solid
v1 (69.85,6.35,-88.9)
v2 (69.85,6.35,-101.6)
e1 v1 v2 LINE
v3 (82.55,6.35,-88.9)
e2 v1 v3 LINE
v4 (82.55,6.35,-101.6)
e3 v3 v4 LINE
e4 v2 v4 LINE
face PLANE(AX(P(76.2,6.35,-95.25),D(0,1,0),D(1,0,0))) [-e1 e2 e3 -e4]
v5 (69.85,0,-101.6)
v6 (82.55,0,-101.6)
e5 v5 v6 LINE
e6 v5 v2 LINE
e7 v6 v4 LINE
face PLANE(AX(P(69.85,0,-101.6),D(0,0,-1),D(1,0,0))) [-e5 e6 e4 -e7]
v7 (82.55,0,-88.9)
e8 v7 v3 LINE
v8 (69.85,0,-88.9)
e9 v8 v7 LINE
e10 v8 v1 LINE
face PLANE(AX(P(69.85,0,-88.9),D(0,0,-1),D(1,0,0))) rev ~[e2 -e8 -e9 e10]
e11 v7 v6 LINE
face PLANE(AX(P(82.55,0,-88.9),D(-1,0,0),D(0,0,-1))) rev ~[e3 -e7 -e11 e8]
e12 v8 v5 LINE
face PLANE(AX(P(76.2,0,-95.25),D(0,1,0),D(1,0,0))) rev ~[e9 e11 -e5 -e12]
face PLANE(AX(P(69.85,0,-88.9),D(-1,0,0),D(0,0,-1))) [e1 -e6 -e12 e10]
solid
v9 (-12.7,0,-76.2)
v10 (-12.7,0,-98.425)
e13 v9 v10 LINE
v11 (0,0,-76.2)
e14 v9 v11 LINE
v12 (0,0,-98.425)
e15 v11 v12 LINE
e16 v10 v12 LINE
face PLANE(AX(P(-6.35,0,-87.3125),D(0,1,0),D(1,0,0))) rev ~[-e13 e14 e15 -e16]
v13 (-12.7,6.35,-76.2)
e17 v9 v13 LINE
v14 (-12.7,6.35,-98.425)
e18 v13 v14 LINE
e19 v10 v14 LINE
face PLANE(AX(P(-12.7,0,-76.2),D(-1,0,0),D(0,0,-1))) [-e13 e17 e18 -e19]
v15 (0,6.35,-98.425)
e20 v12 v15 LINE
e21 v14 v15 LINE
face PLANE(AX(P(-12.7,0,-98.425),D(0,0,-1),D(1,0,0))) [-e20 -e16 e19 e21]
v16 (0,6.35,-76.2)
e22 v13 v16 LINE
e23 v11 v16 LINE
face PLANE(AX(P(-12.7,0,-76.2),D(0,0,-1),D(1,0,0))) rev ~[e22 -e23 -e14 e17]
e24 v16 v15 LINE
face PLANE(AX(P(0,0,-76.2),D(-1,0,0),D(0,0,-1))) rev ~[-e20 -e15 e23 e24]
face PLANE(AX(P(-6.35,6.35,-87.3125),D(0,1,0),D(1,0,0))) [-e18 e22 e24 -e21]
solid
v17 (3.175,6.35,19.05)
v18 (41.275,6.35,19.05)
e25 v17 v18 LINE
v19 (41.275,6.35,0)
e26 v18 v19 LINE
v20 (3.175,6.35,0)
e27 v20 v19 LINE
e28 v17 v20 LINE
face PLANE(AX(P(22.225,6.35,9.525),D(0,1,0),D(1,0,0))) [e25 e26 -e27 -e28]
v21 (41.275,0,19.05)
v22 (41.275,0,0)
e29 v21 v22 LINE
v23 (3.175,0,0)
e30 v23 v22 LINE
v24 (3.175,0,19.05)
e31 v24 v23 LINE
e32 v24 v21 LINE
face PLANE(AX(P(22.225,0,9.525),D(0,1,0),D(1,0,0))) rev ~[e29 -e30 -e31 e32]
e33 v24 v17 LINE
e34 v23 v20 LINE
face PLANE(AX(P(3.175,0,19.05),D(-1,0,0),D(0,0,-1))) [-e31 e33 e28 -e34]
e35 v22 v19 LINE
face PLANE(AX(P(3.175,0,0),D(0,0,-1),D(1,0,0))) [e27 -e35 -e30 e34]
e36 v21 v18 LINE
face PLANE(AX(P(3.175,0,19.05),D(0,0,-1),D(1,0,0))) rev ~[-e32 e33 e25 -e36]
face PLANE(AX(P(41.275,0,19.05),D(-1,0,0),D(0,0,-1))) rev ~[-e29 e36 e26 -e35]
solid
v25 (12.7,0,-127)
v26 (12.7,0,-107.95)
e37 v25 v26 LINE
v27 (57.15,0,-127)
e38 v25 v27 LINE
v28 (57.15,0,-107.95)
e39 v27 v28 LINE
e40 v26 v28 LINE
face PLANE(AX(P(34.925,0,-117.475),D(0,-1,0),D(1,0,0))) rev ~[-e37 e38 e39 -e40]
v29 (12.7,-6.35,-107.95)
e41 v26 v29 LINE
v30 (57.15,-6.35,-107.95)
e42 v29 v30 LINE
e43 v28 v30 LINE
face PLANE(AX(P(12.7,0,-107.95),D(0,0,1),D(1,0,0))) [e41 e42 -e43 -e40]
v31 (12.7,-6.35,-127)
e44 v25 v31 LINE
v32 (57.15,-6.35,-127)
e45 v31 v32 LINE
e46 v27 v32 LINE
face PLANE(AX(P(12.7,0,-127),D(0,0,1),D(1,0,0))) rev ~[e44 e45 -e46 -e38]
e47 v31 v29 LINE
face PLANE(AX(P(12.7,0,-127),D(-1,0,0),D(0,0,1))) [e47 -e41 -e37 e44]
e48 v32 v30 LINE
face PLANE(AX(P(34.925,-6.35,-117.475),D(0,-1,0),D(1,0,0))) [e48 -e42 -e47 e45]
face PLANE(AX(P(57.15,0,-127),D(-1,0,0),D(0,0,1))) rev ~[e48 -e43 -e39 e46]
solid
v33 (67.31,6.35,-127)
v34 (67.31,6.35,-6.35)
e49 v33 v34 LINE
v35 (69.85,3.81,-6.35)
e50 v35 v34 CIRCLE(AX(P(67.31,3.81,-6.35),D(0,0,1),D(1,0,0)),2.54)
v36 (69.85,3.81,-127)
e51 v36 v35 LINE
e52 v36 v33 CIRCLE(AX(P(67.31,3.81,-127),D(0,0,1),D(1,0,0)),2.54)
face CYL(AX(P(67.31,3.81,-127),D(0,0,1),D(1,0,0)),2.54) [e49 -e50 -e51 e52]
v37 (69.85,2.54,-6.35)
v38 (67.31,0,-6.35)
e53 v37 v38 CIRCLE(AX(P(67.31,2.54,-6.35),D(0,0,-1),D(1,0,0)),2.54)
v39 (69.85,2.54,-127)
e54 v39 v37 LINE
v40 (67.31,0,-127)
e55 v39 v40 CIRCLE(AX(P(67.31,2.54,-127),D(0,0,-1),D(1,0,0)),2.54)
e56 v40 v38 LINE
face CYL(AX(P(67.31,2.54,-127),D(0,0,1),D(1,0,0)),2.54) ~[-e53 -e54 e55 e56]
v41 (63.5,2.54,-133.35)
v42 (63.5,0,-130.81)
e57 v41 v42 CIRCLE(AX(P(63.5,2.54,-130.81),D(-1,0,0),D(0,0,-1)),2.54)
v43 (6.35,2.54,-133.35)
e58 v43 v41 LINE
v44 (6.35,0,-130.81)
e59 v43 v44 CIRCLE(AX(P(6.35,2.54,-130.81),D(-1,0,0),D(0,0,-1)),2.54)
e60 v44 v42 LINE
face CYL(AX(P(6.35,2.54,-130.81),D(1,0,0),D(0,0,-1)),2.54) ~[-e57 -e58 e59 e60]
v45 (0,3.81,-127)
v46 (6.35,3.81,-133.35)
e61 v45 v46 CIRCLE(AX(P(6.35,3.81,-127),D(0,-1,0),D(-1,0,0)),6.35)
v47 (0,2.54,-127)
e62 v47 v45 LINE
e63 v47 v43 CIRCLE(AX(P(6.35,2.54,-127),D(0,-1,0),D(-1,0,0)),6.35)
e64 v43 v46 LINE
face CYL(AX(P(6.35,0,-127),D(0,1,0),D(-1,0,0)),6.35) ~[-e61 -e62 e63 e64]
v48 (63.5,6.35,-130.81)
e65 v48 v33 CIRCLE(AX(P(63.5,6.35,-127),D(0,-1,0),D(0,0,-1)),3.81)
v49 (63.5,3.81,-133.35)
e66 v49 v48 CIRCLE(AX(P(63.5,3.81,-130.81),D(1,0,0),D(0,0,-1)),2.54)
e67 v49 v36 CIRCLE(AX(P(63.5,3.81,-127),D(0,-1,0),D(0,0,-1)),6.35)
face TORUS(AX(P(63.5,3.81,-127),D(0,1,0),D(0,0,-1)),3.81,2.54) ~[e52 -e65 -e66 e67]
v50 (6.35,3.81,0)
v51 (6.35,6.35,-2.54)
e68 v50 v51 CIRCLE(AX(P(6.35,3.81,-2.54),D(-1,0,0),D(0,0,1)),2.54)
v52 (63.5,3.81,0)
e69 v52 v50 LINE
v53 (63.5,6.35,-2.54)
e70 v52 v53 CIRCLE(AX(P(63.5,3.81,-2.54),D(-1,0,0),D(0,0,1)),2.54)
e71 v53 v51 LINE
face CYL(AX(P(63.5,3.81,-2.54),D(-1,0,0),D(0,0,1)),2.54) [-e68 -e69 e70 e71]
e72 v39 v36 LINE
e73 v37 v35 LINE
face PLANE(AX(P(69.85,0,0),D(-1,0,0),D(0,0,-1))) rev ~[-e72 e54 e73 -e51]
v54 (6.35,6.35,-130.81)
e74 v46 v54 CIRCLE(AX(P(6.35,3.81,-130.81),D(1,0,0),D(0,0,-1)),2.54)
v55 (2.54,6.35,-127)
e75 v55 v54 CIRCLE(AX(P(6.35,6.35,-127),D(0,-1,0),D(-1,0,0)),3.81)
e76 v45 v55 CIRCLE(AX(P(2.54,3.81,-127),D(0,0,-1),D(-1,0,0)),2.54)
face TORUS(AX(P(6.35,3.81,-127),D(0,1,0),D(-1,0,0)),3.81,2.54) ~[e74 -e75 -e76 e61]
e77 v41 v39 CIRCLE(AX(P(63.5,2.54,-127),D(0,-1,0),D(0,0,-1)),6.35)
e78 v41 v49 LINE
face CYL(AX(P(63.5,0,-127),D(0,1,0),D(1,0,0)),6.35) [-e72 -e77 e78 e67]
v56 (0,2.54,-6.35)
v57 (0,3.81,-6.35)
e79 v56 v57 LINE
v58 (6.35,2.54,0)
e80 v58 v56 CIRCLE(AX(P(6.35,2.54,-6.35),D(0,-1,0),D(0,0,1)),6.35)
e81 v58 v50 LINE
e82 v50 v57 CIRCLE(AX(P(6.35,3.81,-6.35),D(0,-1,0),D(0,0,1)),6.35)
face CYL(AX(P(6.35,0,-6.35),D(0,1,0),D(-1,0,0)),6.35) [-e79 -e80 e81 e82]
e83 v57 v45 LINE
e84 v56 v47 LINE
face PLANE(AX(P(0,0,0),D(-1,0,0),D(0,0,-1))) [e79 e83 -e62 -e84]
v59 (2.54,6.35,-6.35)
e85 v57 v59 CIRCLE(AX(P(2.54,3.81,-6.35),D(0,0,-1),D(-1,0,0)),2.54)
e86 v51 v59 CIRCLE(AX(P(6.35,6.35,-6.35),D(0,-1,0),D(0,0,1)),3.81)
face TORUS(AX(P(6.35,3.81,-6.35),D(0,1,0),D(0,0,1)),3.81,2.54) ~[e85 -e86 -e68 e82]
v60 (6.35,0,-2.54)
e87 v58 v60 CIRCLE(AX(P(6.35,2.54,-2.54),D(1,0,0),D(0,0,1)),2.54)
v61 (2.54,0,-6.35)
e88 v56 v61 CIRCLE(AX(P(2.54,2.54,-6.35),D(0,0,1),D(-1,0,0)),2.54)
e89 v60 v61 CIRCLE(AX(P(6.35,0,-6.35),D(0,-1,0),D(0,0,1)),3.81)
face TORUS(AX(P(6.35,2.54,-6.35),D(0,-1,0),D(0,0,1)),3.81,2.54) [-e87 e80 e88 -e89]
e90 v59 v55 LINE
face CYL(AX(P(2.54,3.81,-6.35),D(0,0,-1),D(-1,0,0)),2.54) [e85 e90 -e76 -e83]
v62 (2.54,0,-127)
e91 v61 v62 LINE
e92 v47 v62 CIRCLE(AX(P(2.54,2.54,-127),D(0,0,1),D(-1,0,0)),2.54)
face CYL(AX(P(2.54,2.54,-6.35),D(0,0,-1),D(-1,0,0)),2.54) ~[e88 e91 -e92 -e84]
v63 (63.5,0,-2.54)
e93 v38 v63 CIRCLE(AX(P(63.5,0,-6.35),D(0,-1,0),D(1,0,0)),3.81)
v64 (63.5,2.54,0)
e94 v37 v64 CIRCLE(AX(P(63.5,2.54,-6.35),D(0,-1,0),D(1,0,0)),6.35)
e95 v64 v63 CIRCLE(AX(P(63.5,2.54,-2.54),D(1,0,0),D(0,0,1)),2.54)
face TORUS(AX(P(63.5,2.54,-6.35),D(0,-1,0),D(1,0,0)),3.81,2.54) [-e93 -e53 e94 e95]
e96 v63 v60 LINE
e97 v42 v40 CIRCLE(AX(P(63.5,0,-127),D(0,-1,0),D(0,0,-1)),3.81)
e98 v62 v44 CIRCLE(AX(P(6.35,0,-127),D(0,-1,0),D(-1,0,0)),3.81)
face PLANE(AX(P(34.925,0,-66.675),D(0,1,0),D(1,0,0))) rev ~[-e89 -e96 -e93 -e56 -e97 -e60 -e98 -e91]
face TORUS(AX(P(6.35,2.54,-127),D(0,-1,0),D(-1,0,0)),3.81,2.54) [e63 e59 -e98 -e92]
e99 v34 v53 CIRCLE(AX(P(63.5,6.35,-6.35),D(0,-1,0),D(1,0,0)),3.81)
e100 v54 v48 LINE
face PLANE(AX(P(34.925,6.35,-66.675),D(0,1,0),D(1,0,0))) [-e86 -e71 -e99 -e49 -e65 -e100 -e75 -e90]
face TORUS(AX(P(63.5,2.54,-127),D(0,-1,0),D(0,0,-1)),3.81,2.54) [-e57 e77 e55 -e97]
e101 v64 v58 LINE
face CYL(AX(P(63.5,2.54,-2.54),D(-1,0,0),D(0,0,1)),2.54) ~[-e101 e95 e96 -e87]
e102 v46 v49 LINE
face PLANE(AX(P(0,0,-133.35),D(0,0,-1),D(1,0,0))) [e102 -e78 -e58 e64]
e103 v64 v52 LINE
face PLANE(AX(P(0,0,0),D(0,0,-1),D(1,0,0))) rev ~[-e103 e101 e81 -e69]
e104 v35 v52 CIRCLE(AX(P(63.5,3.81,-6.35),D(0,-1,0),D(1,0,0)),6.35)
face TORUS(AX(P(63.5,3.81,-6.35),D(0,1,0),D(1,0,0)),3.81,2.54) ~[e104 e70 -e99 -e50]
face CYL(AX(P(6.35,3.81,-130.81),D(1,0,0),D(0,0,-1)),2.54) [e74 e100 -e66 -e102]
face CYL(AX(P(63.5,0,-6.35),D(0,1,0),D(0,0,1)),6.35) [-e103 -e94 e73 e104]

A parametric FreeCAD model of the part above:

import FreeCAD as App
import Part
import Sketcher

V = App.Vector
Q = App.Units.Quantity


def edges_at(feature, points):
    """Names of the edges that pass closest to the given points."""
    edges = feature.Shape.Edges
    near = lambda p: min(range(len(edges)), key=lambda i: edges[i].distToShape(Part.Vertex(*p))[0])
    return sorted({f"Edge{near(p) + 1}" for p in points})


def add_polygon(sketch, points):
    """Adds a closed chain of lines whose ends are joined by coincident constraints."""
    first, n = sketch.GeometryCount, len(points)
    for a, b in zip(points, points[1:] + points[:1]):
        sketch.addGeometry(Part.LineSegment(App.Vector(*a, 0), App.Vector(*b, 0)), False)
    for i in range(n):
        sketch.addConstraint(Sketcher.Constraint("Coincident", first + i, 2, first + (i + 1) % n, 1))

doc = App.newDocument("Part")
body = doc.addObject("PartDesign::Body", "Body")

# Sketch on XZ plane
sketch1 = doc.addObject("Sketcher::SketchObject", "Sketch")
body.addObject(sketch1)
sketch1.AttachmentSupport = (doc.XZ_Plane, [""])
sketch1.MapMode = "FlatFace"
add_polygon(sketch1, [(0, -133), (0, 0), (70, 0), (70, -133)])  # lines 0-3
sketch1.addConstraint([
    Sketcher.Constraint("Vertical", 0),
    Sketcher.Constraint("Horizontal", 1),
    Sketcher.Constraint("Vertical", 2),
    Sketcher.Constraint("Horizontal", 3),
    Sketcher.Constraint("Coincident", 0, 2, -1, 1),
    Sketcher.Constraint("DistanceX", 1, 1, 1, 2, Q("2.75 in")),
    Sketcher.Constraint("DistanceY", 0, 1, 0, 2, Q("5.25 in")),
])
pad1 = doc.addObject("PartDesign::Pad", "Pad")
body.addObject(pad1)
pad1.Profile = sketch1
pad1.Length = Q("0.25 in")
pad1.Reversed = True
doc.recompute()

fillet = doc.addObject("PartDesign::Fillet", "Fillet")
body.addObject(fillet)
fillet.Base = (pad1, edges_at(pad1, [
    (0, 3.175, -133.35),
    (69.85, 3.175, -133.35),
    (69.85, 3.175, 0),
    (0, 3.175, 0),
]))
fillet.Radius = Q("0.25 in")
doc.recompute()

fillet2 = doc.addObject("PartDesign::Fillet", "Fillet001")
body.addObject(fillet2)
fillet2.Base = (fillet, edges_at(fillet, [
    (0, 0, -66.675),
    (0, 6.35, -66.675),
    (34.925, 0, -133.35),
    (69.85, 0, -66.675),
    (34.925, 0, 0),
    (67.99, 0, -1.86),
    (1.86, 0, -1.86),
    (67.99, 0, -131.49),
    (1.86, 0, -131.49),
    (34.925, 6.35, -133.35),
    (34.925, 6.35, 0),
    (69.85, 6.35, -66.675),
    (67.99, 6.35, -1.86),
    (1.86, 6.35, -1.86),
    (67.99, 6.35, -131.49),
    (1.86, 6.35, -131.49),
]))
fillet2.Radius = Q("0.1 in")
body2 = doc.addObject("PartDesign::Body", "Body001")

# Sketch on XZ plane
sketch2 = doc.addObject("Sketcher::SketchObject", "Sketch001")
body2.addObject(sketch2)
sketch2.AttachmentSupport = (doc.getObject("XZ_Plane001"), [""])
sketch2.MapMode = "FlatFace"
add_polygon(sketch2, [(70, -102), (70, -89), (83, -89), (83, -102)])  # lines 0-3
sketch2.addConstraint([
    Sketcher.Constraint("Vertical", 0),
    Sketcher.Constraint("Horizontal", 1),
    Sketcher.Constraint("Vertical", 2),
    Sketcher.Constraint("Horizontal", 3),
    Sketcher.Constraint("Equal", 3, 0),
    Sketcher.Constraint("DistanceX", 1, 1, 1, 2, Q("0.5 in")),
    Sketcher.Constraint("DistanceY", 2, 2, -1, 1, Q("4 in")),
    Sketcher.Constraint("DistanceX", -1, 1, 0, 2, Q("2.75 in")),
])
pad2 = doc.addObject("PartDesign::Pad", "Pad001")
body2.addObject(pad2)
pad2.Profile = sketch2
pad2.Length = Q("0.25 in")
pad2.Reversed = True
body3 = doc.addObject("PartDesign::Body", "Body002")

# Sketch on XZ plane
sketch3 = doc.addObject("Sketcher::SketchObject", "Sketch002")
body3.addObject(sketch3)
sketch3.AttachmentSupport = (doc.getObject("XZ_Plane002"), [""])
sketch3.MapMode = "FlatFace"
add_polygon(sketch3, [(-13, -98), (-13, -76), (0, -76), (0, -98)])  # lines 0-3
sketch3.addConstraint([
    Sketcher.Constraint("Vertical", 0),
    Sketcher.Constraint("Horizontal", 1),
    Sketcher.Constraint("Vertical", 2),
    Sketcher.Constraint("Horizontal", 3),
    Sketcher.Constraint("PointOnObject", 1, 2, -2),
    Sketcher.Constraint("DistanceX", 1, 1, 1, 2, Q("0.5 in")),
    Sketcher.Constraint("DistanceY", 0, 2, -1, 1, Q("3 in")),
    Sketcher.Constraint("DistanceY", 0, 1, 0, 2, Q("0.875 in")),
])
pad3 = doc.addObject("PartDesign::Pad", "Pad002")
body3.addObject(pad3)
pad3.Profile = sketch3
pad3.Length = Q("0.25 in")
pad3.Reversed = True
body4 = doc.addObject("PartDesign::Body", "Body003")

# Sketch on XZ plane
sketch4 = doc.addObject("Sketcher::SketchObject", "Sketch003")
body4.addObject(sketch4)
sketch4.AttachmentSupport = (doc.getObject("XZ_Plane003"), [""])
sketch4.MapMode = "FlatFace"
add_polygon(sketch4, [(13, -108), (13, -127), (57, -127), (57, -108)])  # lines 0-3
sketch4.addConstraint([
    Sketcher.Constraint("Vertical", 0),
    Sketcher.Constraint("Horizontal", 1),
    Sketcher.Constraint("Vertical", 2),
    Sketcher.Constraint("Horizontal", 3),
    Sketcher.Constraint("DistanceY", 0, 2, -1, 1, Q("5 in")),
    Sketcher.Constraint("DistanceX", 1, 1, 1, 2, Q("1.75 in")),
    Sketcher.Constraint("DistanceY", 0, 2, 0, 1, Q("0.75 in")),
    Sketcher.Constraint("DistanceX", -1, 1, 0, 2, Q("0.5 in")),
])
pad4 = doc.addObject("PartDesign::Pad", "Pad003")
body4.addObject(pad4)
pad4.Profile = sketch4
pad4.Length = Q("0.25 in")
body5 = doc.addObject("PartDesign::Body", "Body004")

# Sketch on XZ plane
sketch5 = doc.addObject("Sketcher::SketchObject", "Sketch004")
body5.addObject(sketch5)
sketch5.AttachmentSupport = (doc.getObject("XZ_Plane004"), [""])
sketch5.MapMode = "FlatFace"
add_polygon(sketch5, [(3, 0), (3, 19), (41, 19), (41, 0)])  # lines 0-3
sketch5.addConstraint([
    Sketcher.Constraint("Vertical", 0),
    Sketcher.Constraint("Horizontal", 1),
    Sketcher.Constraint("Vertical", 2),
    Sketcher.Constraint("Horizontal", 3),
    Sketcher.Constraint("PointOnObject", 2, 2, -1),
    Sketcher.Constraint("DistanceX", 1, 1, 1, 2, Q("1.5 in")),
    Sketcher.Constraint("DistanceY", 0, 1, 0, 2, Q("0.75 in")),
    Sketcher.Constraint("DistanceX", -1, 1, 0, 2, Q("0.125 in")),
])
pad5 = doc.addObject("PartDesign::Pad", "Pad004")
body5.addObject(pad5)
pad5.Profile = sketch5
pad5.Length = Q("0.25 in")
pad5.Reversed = True

doc.recompute()
